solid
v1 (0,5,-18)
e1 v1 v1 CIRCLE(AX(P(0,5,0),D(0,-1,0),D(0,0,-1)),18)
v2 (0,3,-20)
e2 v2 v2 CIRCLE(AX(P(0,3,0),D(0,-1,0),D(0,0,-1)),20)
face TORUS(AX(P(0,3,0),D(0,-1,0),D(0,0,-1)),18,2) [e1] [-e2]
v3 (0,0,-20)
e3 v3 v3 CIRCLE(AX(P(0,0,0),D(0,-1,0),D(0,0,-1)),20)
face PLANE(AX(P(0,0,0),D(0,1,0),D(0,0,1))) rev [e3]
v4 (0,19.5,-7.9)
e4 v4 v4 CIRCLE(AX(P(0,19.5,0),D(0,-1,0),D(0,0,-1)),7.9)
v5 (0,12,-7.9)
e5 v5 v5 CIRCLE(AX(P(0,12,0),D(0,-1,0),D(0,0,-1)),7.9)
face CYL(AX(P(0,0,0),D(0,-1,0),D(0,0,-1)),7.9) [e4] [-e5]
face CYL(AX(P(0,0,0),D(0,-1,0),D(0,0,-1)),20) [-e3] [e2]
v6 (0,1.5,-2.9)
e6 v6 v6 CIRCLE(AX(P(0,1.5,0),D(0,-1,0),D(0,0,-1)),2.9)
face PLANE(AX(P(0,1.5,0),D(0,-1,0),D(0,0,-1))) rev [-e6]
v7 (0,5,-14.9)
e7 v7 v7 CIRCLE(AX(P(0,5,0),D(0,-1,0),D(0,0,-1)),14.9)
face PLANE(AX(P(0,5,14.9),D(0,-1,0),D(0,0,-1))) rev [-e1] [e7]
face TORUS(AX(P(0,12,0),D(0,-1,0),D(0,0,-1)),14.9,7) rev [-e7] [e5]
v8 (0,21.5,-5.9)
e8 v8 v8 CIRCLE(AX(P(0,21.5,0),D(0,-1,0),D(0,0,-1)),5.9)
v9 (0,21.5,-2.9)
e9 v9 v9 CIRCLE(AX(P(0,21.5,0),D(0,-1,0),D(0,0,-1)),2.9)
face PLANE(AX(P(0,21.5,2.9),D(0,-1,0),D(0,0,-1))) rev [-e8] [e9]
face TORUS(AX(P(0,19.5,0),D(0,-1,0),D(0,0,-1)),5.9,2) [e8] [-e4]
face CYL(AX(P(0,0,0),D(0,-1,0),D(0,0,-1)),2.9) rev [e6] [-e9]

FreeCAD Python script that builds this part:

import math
import FreeCAD as App
import Part
import Sketcher

V = App.Vector
Q = App.Units.Quantity

doc = App.newDocument("Part")
body = doc.addObject("PartDesign::Body", "Body")

sketch1 = body.newObject("Sketcher::SketchObject", "Sketch")
sketch1.AttachmentSupport = (doc.getObject("YZ_Plane"), [""])
sketch1.MapMode = "FlatFace"
sketch1.addGeometry([
    Part.LineSegment(V(0, 20, 0), V(0, 0, 0)),
    Part.LineSegment(V(0, 0, 0), V(1.5, 0, 0)),
    Part.LineSegment(V(1.5, 0, 0), V(1.5, 2.9, 0)),
    Part.LineSegment(V(1.5, 2.9, 0), V(21.5, 2.9, 0)),
    Part.LineSegment(V(21.5, 2.9, 0), V(21.5, 5.9, 0)),
    Part.ArcOfCircle(Part.Circle(V(19.5, 5.9, 0), V(0, 0, 1), 2), math.radians(0), math.radians(90)),
    Part.LineSegment(V(19.5, 7.9, 0), V(12, 7.9, 0)),
    Part.ArcOfCircle(Part.Circle(V(12, 14.9, 0), V(0, 0, 1), 7), math.radians(-180), math.radians(-90)),
    Part.LineSegment(V(5, 14.9, 0), V(5, 18, 0)),
    Part.ArcOfCircle(Part.Circle(V(3, 18, 0), V(0, 0, 1), 2), math.radians(0), math.radians(90)),
    Part.LineSegment(V(3, 20, 0), V(0, 20, 0)),
], False)
sketch1.addConstraint([
    Sketcher.Constraint("Coincident", 0, 2, 1, 1),
    Sketcher.Constraint("Coincident", 1, 2, 2, 1),
    Sketcher.Constraint("Coincident", 2, 2, 3, 1),
    Sketcher.Constraint("Coincident", 3, 2, 4, 1),
    Sketcher.Constraint("Tangent", 4, 2, 5, 1),
    Sketcher.Constraint("Tangent", 5, 2, 6, 1),
    Sketcher.Constraint("Tangent", 6, 2, 7, 2),
    Sketcher.Constraint("Tangent", 7, 1, 8, 1),
    Sketcher.Constraint("Tangent", 8, 2, 9, 1),
    Sketcher.Constraint("Tangent", 9, 2, 10, 1),
    Sketcher.Constraint("Coincident", 10, 2, 0, 1),
    Sketcher.Constraint("Vertical", 0),
    Sketcher.Constraint("Horizontal", 1),
    Sketcher.Constraint("Vertical", 2),
    Sketcher.Constraint("Horizontal", 3),
    Sketcher.Constraint("Vertical", 4),
    Sketcher.Constraint("Horizontal", 6),
    Sketcher.Constraint("Vertical", 8),
    Sketcher.Constraint("Horizontal", 10),
    Sketcher.Constraint("Coincident", 0, 2, -1, 1),
    Sketcher.Constraint("Equal", 5, 9),
    Sketcher.Constraint("Equal", 3, 0),
    Sketcher.Constraint("Equal", 10, 4),
    Sketcher.Constraint("Radius", 5, Q("2 mm")),
    Sketcher.Constraint("Radius", 7, Q("7 mm")),
    Sketcher.Constraint("DistanceX", 3, 1, 3, 2, Q("20 mm")),
    Sketcher.Constraint("DistanceX", 10, 2, 10, 1, Q("3 mm")),
    Sketcher.Constraint("DistanceX", 1, 1, 1, 2, Q("1.5 mm")),
    Sketcher.Constraint("DistanceY", 2, 1, 2, 2, Q("2.9 mm")),
])
revolution = body.newObject("PartDesign::Revolution", "Revolution")
revolution.Profile = sketch1
revolution.ReferenceAxis = (sketch1, ["H_Axis"])
revolution.Angle = 360

doc.recompute()
